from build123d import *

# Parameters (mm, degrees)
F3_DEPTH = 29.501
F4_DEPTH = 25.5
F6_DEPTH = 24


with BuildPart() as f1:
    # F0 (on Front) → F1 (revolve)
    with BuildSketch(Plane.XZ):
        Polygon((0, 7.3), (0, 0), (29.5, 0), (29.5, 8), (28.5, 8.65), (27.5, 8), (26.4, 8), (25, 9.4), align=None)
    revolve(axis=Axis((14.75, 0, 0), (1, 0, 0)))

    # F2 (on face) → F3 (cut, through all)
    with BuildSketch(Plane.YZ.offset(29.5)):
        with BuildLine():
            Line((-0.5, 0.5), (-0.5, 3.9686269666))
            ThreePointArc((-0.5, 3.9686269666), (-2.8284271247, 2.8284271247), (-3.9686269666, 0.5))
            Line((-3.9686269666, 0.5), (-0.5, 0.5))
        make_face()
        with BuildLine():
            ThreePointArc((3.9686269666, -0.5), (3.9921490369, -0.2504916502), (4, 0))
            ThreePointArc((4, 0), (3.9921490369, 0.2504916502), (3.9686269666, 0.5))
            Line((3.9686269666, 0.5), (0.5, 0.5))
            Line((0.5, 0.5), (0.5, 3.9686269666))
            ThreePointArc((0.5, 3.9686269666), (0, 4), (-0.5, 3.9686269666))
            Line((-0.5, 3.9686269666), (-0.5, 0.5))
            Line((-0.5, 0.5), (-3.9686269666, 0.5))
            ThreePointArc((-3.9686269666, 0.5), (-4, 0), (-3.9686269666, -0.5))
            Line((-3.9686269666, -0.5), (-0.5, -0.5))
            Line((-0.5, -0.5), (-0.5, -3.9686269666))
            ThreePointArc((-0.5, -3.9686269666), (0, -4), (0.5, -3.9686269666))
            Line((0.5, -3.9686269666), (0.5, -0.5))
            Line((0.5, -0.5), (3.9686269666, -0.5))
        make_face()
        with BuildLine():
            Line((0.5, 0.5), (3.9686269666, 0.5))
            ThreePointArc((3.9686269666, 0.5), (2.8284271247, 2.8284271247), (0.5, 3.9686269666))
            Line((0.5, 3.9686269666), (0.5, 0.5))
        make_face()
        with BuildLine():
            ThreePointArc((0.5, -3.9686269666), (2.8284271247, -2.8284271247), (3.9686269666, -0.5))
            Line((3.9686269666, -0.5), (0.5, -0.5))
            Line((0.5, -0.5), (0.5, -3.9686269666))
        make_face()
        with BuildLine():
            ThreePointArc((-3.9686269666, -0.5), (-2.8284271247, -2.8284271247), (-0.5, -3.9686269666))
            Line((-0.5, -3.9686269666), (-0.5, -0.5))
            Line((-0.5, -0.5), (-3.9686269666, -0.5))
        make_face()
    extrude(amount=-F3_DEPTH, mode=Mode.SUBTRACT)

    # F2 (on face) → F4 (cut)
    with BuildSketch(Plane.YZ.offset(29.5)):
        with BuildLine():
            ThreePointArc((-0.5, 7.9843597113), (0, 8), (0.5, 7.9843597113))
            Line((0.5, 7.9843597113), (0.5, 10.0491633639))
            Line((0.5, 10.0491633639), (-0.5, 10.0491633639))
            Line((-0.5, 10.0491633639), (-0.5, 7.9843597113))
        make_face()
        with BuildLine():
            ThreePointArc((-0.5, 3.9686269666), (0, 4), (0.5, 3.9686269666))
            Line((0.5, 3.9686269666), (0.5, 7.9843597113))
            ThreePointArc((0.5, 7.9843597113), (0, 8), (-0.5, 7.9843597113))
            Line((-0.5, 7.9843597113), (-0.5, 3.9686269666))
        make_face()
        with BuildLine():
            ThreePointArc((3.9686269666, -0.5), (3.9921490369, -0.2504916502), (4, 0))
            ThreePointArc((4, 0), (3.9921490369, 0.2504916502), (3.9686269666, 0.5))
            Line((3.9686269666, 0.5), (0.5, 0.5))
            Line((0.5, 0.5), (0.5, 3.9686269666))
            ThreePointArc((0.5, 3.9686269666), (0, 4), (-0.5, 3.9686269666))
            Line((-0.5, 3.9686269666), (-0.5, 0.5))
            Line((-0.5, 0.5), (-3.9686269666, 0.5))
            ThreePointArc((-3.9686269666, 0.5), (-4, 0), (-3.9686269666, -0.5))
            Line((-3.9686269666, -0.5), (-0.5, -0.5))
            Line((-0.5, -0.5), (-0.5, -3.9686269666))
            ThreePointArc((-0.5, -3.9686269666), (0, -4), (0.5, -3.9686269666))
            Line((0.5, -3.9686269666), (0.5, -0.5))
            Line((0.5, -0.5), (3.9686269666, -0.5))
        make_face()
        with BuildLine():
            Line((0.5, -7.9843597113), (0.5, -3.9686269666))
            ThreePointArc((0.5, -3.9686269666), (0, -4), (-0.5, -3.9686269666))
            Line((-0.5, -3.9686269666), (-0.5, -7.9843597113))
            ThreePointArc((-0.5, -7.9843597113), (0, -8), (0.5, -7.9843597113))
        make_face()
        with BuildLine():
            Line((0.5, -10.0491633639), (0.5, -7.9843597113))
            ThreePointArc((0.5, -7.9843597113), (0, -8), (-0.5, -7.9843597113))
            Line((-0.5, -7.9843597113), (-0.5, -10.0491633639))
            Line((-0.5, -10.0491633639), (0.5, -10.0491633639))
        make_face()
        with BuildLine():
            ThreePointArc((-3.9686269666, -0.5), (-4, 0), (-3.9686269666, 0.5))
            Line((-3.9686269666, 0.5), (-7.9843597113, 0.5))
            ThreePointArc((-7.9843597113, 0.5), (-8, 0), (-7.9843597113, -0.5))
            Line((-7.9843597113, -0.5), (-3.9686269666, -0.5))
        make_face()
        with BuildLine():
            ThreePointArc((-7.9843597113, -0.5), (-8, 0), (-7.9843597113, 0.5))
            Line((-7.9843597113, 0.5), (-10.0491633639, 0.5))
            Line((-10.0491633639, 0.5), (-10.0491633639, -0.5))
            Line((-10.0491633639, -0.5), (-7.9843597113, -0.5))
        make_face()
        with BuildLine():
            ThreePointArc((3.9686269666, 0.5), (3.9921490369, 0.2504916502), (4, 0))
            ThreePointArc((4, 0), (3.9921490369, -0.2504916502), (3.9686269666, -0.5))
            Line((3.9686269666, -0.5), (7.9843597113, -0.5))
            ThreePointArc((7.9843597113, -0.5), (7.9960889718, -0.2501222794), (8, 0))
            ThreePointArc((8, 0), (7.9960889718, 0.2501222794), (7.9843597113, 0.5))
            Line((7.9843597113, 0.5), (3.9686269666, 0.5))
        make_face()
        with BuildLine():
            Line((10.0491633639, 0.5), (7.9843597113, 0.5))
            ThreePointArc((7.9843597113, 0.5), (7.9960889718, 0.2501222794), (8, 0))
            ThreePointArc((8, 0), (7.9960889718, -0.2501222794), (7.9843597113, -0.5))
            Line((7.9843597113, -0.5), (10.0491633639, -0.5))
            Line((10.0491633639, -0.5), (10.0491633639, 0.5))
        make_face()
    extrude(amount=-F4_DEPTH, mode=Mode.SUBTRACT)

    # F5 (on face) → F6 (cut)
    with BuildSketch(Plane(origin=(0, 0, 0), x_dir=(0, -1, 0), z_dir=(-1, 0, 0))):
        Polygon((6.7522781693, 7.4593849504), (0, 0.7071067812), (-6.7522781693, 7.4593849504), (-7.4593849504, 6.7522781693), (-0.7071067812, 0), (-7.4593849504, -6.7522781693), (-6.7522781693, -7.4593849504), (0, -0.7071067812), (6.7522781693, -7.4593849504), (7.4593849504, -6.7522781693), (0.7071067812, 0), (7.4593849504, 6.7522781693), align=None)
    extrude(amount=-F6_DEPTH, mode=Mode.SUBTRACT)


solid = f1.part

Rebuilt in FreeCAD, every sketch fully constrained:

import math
import FreeCAD as App
import Part
import Sketcher

V = App.Vector
Q = App.Units.Quantity

doc = App.newDocument("Part")
body = doc.addObject("PartDesign::Body", "Body")

sketch1 = body.newObject("Sketcher::SketchObject", "Sketch")
sketch1.AttachmentSupport = (doc.getObject("XZ_Plane"), [""])
sketch1.MapMode = "FlatFace"
sketch1.addGeometry([
    Part.LineSegment(V(0, 7.3, 0), V(0, 0, 0)),
    Part.LineSegment(V(0, 0, 0), V(29.5, 0, 0)),
    Part.LineSegment(V(29.5, 0, 0), V(29.5, 8, 0)),
    Part.LineSegment(V(29.5, 8, 0), V(28.5, 8.7, 0)),
    Part.LineSegment(V(28.5, 8.7, 0), V(27.5, 8, 0)),
    Part.LineSegment(V(27.5, 8, 0), V(26.4, 8, 0)),
    Part.LineSegment(V(26.4, 8, 0), V(25, 9.4, 0)),
    Part.LineSegment(V(25, 9.4, 0), V(0, 7.3, 0)),
], False)
sketch1.addConstraint([
    Sketcher.Constraint("Coincident", 0, 2, 1, 1),
    Sketcher.Constraint("Coincident", 1, 2, 2, 1),
    Sketcher.Constraint("Coincident", 2, 2, 3, 1),
    Sketcher.Constraint("Coincident", 3, 2, 4, 1),
    Sketcher.Constraint("Coincident", 4, 2, 5, 1),
    Sketcher.Constraint("Coincident", 5, 2, 6, 1),
    Sketcher.Constraint("Coincident", 6, 2, 7, 1),
    Sketcher.Constraint("Coincident", 7, 2, 0, 1),
    Sketcher.Constraint("Vertical", 0),
    Sketcher.Constraint("Horizontal", 1),
    Sketcher.Constraint("Vertical", 2),
    Sketcher.Constraint("Horizontal", 5),
    Sketcher.Constraint("Coincident", 0, 2, -1, 1),
    Sketcher.Constraint("Horizontal", 2, 2, 4, 2),
    Sketcher.Constraint("Equal", 3, 4),
    Sketcher.Constraint("DistanceY", 2, 1, 2, 2, 8.0),
    Sketcher.Constraint("Angle", 6, Q("135 deg")),
    Sketcher.Constraint("DistanceX", 1, 1, 1, 2, 29.5),
    Sketcher.Constraint("DistanceX", 5, 2, 5, 1, 1.1),
    Sketcher.Constraint("DistanceY", 0, 2, 0, 1, 7.3),
    Sketcher.Constraint("DistanceX", -1, 1, 6, 2, 25.0),
    Sketcher.Constraint("DistanceX", 3, 2, 2, 2, 1.0),
    Sketcher.Constraint("DistanceY", -1, 1, 3, 2, 8.65),
])
revolution = body.newObject("PartDesign::Revolution", "Revolution")
revolution.Profile = sketch1
revolution.ReferenceAxis = (sketch1, ["H_Axis"])
revolution.Angle = 360

sketch2 = body.newObject("Sketcher::SketchObject", "Sketch001")
sketch2.AttachmentSupport = (doc.getObject("YZ_Plane"), [""])
sketch2.MapMode = "FlatFace"
sketch2.AttachmentOffset = App.Placement(V(0, 0, 29.5), App.Rotation())
sketch2.addGeometry([
    Part.ArcOfCircle(Part.Circle(V(0, 0, 0), V(0, 0, 1), 4), math.radians(97), math.radians(173)),
    Part.ArcOfCircle(Part.Circle(V(0, 0, 0), V(0, 0, 1), 4), math.radians(172.82), math.radians(187.18)),
    Part.ArcOfCircle(Part.Circle(V(0, 0, 0), V(0, 0, 1), 4), math.radians(-173), math.radians(-97)),
    Part.ArcOfCircle(Part.Circle(V(0, 0, 0), V(0, 0, 1), 4), math.radians(-97.18), math.radians(-82.82)),
    Part.ArcOfCircle(Part.Circle(V(0, 0, 0), V(0, 0, 1), 4), math.radians(-83), math.radians(-7)),
    Part.ArcOfCircle(Part.Circle(V(0, 0, 0), V(0, 0, 1), 4), math.radians(-7.18), math.radians(0)),
    Part.ArcOfCircle(Part.Circle(V(0, 0, 0), V(0, 0, 1), 4), math.radians(0), math.radians(7.18)),
    Part.ArcOfCircle(Part.Circle(V(0, 0, 0), V(0, 0, 1), 4), math.radians(7), math.radians(83)),
    Part.ArcOfCircle(Part.Circle(V(0, 0, 0), V(0, 0, 1), 4), math.radians(82.82), math.radians(97.18)),
], False)
sketch2.addConstraint([
    Sketcher.Constraint("Tangent", 0, 2, 1, 1),
    Sketcher.Constraint("Tangent", 1, 2, 2, 1),
    Sketcher.Constraint("Tangent", 2, 2, 3, 1),
    Sketcher.Constraint("Tangent", 3, 2, 4, 1),
    Sketcher.Constraint("Tangent", 4, 2, 5, 1),
    Sketcher.Constraint("Tangent", 5, 2, 6, 1),
    Sketcher.Constraint("Tangent", 6, 2, 7, 1),
    Sketcher.Constraint("Tangent", 7, 2, 8, 1),
    Sketcher.Constraint("Tangent", 8, 2, 0, 1),
    Sketcher.Constraint("Coincident", 0, 3, -1, 1),
    Sketcher.Constraint("Coincident", 2, 3, -1, 1),
    Sketcher.Constraint("Coincident", 4, 3, -1, 1),
    Sketcher.Constraint("Coincident", 6, 3, -1, 1),
    Sketcher.Constraint("PointOnObject", 5, 2, -1),
    Sketcher.Constraint("Horizontal", 2, 2, 3, 2),
    Sketcher.Constraint("Horizontal", 1, 2, 4, 2),
    Sketcher.Constraint("Horizontal", 0, 2, 6, 2),
    Sketcher.Constraint("Horizontal", 7, 2, 8, 2),
    Sketcher.Constraint("Vertical", 0, 2, 1, 2),
    Sketcher.Constraint("Vertical", 3, 2, 7, 2),
    Sketcher.Constraint("Radius", 0, 4.0),
    Sketcher.Constraint("DistanceY", 1, 2, 0, 2, 1.0),
    Sketcher.Constraint("DistanceX", 2, 2, 3, 2, 1.0),
])
pocket1 = body.newObject("PartDesign::Pocket", "Pocket")
pocket1.Profile = sketch2
pocket1.Type = "ThroughAll"

sketch3 = body.newObject("Sketcher::SketchObject", "Sketch002")
sketch3.AttachmentSupport = (doc.getObject("YZ_Plane"), [""])
sketch3.MapMode = "FlatFace"
sketch3.AttachmentOffset = App.Placement(V(0, 0, 29.5), App.Rotation())
sketch3.addGeometry([
    Part.LineSegment(V(0.5, 10, 0), V(-0.5, 10, 0)),
    Part.LineSegment(V(-0.5, 10, 0), V(-0.5, 0.5, 0)),
    Part.LineSegment(V(-0.5, 0.5, 0), V(-10, 0.5, 0)),
    Part.LineSegment(V(-10, 0.5, 0), V(-10, -0.5, 0)),
    Part.LineSegment(V(-10, -0.5, 0), V(-0.5, -0.5, 0)),
    Part.LineSegment(V(-0.5, -0.5, 0), V(-0.5, -10, 0)),
    Part.LineSegment(V(-0.5, -10, 0), V(0.5, -10, 0)),
    Part.LineSegment(V(0.5, -10, 0), V(0.5, -0.5, 0)),
    Part.LineSegment(V(0.5, -0.5, 0), V(10, -0.5, 0)),
    Part.LineSegment(V(10, -0.5, 0), V(10, 0.5, 0)),
    Part.LineSegment(V(10, 0.5, 0), V(0.5, 0.5, 0)),
    Part.LineSegment(V(0.5, 0.5, 0), V(0.5, 10, 0)),
], False)
sketch3.addConstraint([
    Sketcher.Constraint("Coincident", 0, 2, 1, 1),
    Sketcher.Constraint("Coincident", 1, 2, 2, 1),
    Sketcher.Constraint("Coincident", 2, 2, 3, 1),
    Sketcher.Constraint("Coincident", 3, 2, 4, 1),
    Sketcher.Constraint("Coincident", 4, 2, 5, 1),
    Sketcher.Constraint("Coincident", 5, 2, 6, 1),
    Sketcher.Constraint("Coincident", 6, 2, 7, 1),
    Sketcher.Constraint("Coincident", 7, 2, 8, 1),
    Sketcher.Constraint("Coincident", 8, 2, 9, 1),
    Sketcher.Constraint("Coincident", 9, 2, 10, 1),
    Sketcher.Constraint("Coincident", 10, 2, 11, 1),
    Sketcher.Constraint("Coincident", 11, 2, 0, 1),
    Sketcher.Constraint("Horizontal", 0),
    Sketcher.Constraint("Vertical", 1),
    Sketcher.Constraint("Horizontal", 2),
    Sketcher.Constraint("Vertical", 3),
    Sketcher.Constraint("Horizontal", 4),
    Sketcher.Constraint("Vertical", 5),
    Sketcher.Constraint("Horizontal", 6),
    Sketcher.Constraint("Vertical", 7),
    Sketcher.Constraint("Horizontal", 8),
    Sketcher.Constraint("Vertical", 9),
    Sketcher.Constraint("Horizontal", 10),
    Sketcher.Constraint("Vertical", 11),
    Sketcher.Constraint("Symmetric", 0, 2, 6, 2, -1, 1),
    Sketcher.Constraint("Symmetric", 2, 2, 8, 2, -1, 1),
    Sketcher.Constraint("Symmetric", 4, 2, 10, 2, -1, 1),
    Sketcher.Constraint("Symmetric", 4, 2, 7, 2, -2),
    Sketcher.Constraint("Equal", 10, 1),
    Sketcher.Constraint("Equal", 6, 3),
    Sketcher.Constraint("DistanceX", 0, 2, 0, 1, 1.0),
    Sketcher.Constraint("DistanceX", 2, 2, 2, 1, 9.549163),
])
pocket2 = body.newObject("PartDesign::Pocket", "Pocket001")
pocket2.Profile = sketch3
pocket2.Length = 25.5

sketch4 = body.newObject("Sketcher::SketchObject", "Sketch003")
sketch4.AttachmentSupport = (doc.getObject("YZ_Plane"), [""])
sketch4.MapMode = "FlatFace"
sketch4.addGeometry([
    Part.LineSegment(V(-6.8, 7.5, 0), V(0, 0.7, 0)),
    Part.LineSegment(V(0, 0.7, 0), V(6.8, 7.5, 0)),
    Part.LineSegment(V(6.8, 7.5, 0), V(7.5, 6.8, 0)),
    Part.LineSegment(V(7.5, 6.8, 0), V(0.7, 0, 0)),
    Part.LineSegment(V(0.7, 0, 0), V(7.5, -6.8, 0)),
    Part.LineSegment(V(7.5, -6.8, 0), V(6.8, -7.5, 0)),
    Part.LineSegment(V(6.8, -7.5, 0), V(0, -0.7, 0)),
    Part.LineSegment(V(0, -0.7, 0), V(-6.8, -7.5, 0)),
    Part.LineSegment(V(-6.8, -7.5, 0), V(-7.5, -6.8, 0)),
    Part.LineSegment(V(-7.5, -6.8, 0), V(-0.7, 0, 0)),
    Part.LineSegment(V(-0.7, 0, 0), V(-7.5, 6.8, 0)),
    Part.LineSegment(V(-7.5, 6.8, 0), V(-6.8, 7.5, 0)),
], False)
sketch4.addConstraint([
    Sketcher.Constraint("Coincident", 0, 2, 1, 1),
    Sketcher.Constraint("Coincident", 1, 2, 2, 1),
    Sketcher.Constraint("Coincident", 2, 2, 3, 1),
    Sketcher.Constraint("Coincident", 3, 2, 4, 1),
    Sketcher.Constraint("Coincident", 4, 2, 5, 1),
    Sketcher.Constraint("Coincident", 5, 2, 6, 1),
    Sketcher.Constraint("Coincident", 6, 2, 7, 1),
    Sketcher.Constraint("Coincident", 7, 2, 8, 1),
    Sketcher.Constraint("Coincident", 8, 2, 9, 1),
    Sketcher.Constraint("Coincident", 9, 2, 10, 1),
    Sketcher.Constraint("Coincident", 10, 2, 11, 1),
    Sketcher.Constraint("Coincident", 11, 2, 0, 1),
    Sketcher.Constraint("Symmetric", 0, 2, 6, 2, -1, 1),
    Sketcher.Constraint("Symmetric", 1, 2, 7, 2, -1, 1),
    Sketcher.Constraint("Symmetric", 2, 2, 8, 2, -1, 1),
    Sketcher.Constraint("Symmetric", 3, 2, 9, 2, -1, 1),
    Sketcher.Constraint("Symmetric", 4, 2, 10, 2, -1, 1),
    Sketcher.Constraint("Symmetric", 5, 2, 11, 2, -1, 1),
    Sketcher.Constraint("Symmetric", 5, 2, 7, 2, -2),
    Sketcher.Constraint("Symmetric", 4, 2, 8, 2, -2),
    Sketcher.Constraint("PointOnObject", 0, 2, -2),
    Sketcher.Constraint("PointOnObject", 3, 2, -1),
    Sketcher.Constraint("Perpendicular", 0, 1),
    Sketcher.Constraint("Perpendicular", 1, 2),
    Sketcher.Constraint("Perpendicular", 2, 3),
    Sketcher.Constraint("Equal", 1, 3),
    Sketcher.Constraint("Distance", 2, 1.0),
    Sketcher.Constraint("DistanceX", -1, 1, 1, 2, 6.752278),
])
pocket3 = body.newObject("PartDesign::Pocket", "Pocket002")
pocket3.Profile = sketch4
pocket3.Length = 24
pocket3.Reversed = True

doc.recompute()
